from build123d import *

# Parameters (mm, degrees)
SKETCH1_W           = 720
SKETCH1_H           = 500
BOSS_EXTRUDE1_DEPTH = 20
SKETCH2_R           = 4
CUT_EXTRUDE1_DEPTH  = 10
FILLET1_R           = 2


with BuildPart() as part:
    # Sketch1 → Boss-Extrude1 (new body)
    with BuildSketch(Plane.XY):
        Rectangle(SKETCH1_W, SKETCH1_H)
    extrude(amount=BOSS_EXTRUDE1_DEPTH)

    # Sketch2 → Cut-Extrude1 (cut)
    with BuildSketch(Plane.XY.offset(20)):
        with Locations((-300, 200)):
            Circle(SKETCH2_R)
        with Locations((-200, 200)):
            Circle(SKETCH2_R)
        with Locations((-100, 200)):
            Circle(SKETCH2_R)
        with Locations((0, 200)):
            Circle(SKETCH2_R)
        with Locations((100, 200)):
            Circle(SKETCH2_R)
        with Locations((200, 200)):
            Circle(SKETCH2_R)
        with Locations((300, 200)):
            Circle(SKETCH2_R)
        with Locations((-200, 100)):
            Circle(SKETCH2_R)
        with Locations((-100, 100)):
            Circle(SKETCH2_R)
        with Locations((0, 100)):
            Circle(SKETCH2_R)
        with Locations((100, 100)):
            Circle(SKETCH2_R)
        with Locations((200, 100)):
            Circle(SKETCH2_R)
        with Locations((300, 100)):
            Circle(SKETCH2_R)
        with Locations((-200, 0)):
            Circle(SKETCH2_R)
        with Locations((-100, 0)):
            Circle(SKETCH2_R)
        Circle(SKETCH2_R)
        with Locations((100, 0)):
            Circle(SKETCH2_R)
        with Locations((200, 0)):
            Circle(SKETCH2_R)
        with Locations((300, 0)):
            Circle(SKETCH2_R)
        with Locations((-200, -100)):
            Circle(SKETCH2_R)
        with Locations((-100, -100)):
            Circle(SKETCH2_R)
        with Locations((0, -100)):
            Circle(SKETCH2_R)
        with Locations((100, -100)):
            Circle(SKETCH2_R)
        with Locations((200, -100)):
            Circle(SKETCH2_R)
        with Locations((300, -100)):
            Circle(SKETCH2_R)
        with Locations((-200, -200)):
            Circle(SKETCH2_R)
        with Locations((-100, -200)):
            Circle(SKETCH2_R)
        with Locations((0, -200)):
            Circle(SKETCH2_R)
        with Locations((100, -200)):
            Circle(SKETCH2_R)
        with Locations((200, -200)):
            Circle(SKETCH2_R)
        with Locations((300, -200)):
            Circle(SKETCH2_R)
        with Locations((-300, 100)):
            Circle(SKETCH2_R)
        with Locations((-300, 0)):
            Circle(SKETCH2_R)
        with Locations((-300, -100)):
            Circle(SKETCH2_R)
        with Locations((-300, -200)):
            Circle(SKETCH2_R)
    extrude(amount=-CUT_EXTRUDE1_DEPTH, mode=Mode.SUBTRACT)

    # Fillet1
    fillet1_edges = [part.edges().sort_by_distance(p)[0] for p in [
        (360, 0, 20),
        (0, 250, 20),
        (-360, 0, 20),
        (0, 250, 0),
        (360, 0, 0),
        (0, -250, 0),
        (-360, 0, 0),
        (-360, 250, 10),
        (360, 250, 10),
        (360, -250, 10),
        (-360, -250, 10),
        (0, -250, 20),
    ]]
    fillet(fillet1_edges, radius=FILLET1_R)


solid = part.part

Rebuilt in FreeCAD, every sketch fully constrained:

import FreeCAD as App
import Part
import Sketcher

V = App.Vector


def edges_at(feature, points):
    """Names of the edges that pass closest to the given points."""
    edges = feature.Shape.Edges
    near = lambda p: min(range(len(edges)), key=lambda i: edges[i].distToShape(Part.Vertex(*p))[0])
    return sorted({f"Edge{near(p) + 1}" for p in points})

doc = App.newDocument("Part")
body = doc.addObject("PartDesign::Body", "Body")

sketch1 = doc.addObject("Sketcher::SketchObject", "Sketch")
body.addObject(sketch1)
sketch1.AttachmentSupport = (doc.XY_Plane, [""])
sketch1.MapMode = "FlatFace"
sketch1.addGeometry([
    Part.LineSegment(V(-360, 250, 0), V(-360, -250, 0)),
    Part.LineSegment(V(-360, -250, 0), V(360, -250, 0)),
    Part.LineSegment(V(360, -250, 0), V(360, 250, 0)),
    Part.LineSegment(V(360, 250, 0), V(-360, 250, 0)),
], False)
sketch1.addConstraint([
    Sketcher.Constraint("Coincident", 0, 2, 1, 1),
    Sketcher.Constraint("Coincident", 1, 2, 2, 1),
    Sketcher.Constraint("Coincident", 2, 2, 3, 1),
    Sketcher.Constraint("Coincident", 3, 2, 0, 1),
    Sketcher.Constraint("Vertical", 0),
    Sketcher.Constraint("Horizontal", 1),
    Sketcher.Constraint("Vertical", 2),
    Sketcher.Constraint("Horizontal", 3),
    Sketcher.Constraint("Symmetric", 0, 2, 2, 2, -1, 1),
    Sketcher.Constraint("DistanceX", 1, 1, 1, 2, 720.0),
    Sketcher.Constraint("DistanceY", 0, 2, 0, 1, 500.0),
])
pad1 = doc.addObject("PartDesign::Pad", "Pad")
body.addObject(pad1)
pad1.Profile = sketch1
pad1.Length = 20

sketch2 = doc.addObject("Sketcher::SketchObject", "Sketch001")
body.addObject(sketch2)
sketch2.AttachmentSupport = (doc.XY_Plane, [""])
sketch2.MapMode = "FlatFace"
sketch2.AttachmentOffset = App.Placement(V(0, 0, 20), App.Rotation())
sketch2.addGeometry([
    Part.Circle(V(-300, 200, 0), V(0, 0, 1), 4),
    Part.Circle(V(-200, 200, 0), V(0, 0, 1), 4),
    Part.Circle(V(-100, 200, 0), V(0, 0, 1), 4),
    Part.Circle(V(0, 200, 0), V(0, 0, 1), 4),
    Part.Circle(V(100, 200, 0), V(0, 0, 1), 4),
    Part.Circle(V(200, 200, 0), V(0, 0, 1), 4),
    Part.Circle(V(300, 200, 0), V(0, 0, 1), 4),
    Part.Circle(V(-200, 100, 0), V(0, 0, 1), 4),
    Part.Circle(V(-100, 100, 0), V(0, 0, 1), 4),
    Part.Circle(V(0, 100, 0), V(0, 0, 1), 4),
    Part.Circle(V(100, 100, 0), V(0, 0, 1), 4),
    Part.Circle(V(200, 100, 0), V(0, 0, 1), 4),
    Part.Circle(V(300, 100, 0), V(0, 0, 1), 4),
    Part.Circle(V(-200, 0, 0), V(0, 0, 1), 4),
    Part.Circle(V(-100, 0, 0), V(0, 0, 1), 4),
    Part.Circle(V(0, 0, 0), V(0, 0, 1), 4),
    Part.Circle(V(100, 0, 0), V(0, 0, 1), 4),
    Part.Circle(V(200, 0, 0), V(0, 0, 1), 4),
    Part.Circle(V(300, 0, 0), V(0, 0, 1), 4),
    Part.Circle(V(-200, -100, 0), V(0, 0, 1), 4),
    Part.Circle(V(-100, -100, 0), V(0, 0, 1), 4),
    Part.Circle(V(0, -100, 0), V(0, 0, 1), 4),
    Part.Circle(V(100, -100, 0), V(0, 0, 1), 4),
    Part.Circle(V(200, -100, 0), V(0, 0, 1), 4),
    Part.Circle(V(300, -100, 0), V(0, 0, 1), 4),
    Part.Circle(V(-200, -200, 0), V(0, 0, 1), 4),
    Part.Circle(V(-100, -200, 0), V(0, 0, 1), 4),
    Part.Circle(V(0, -200, 0), V(0, 0, 1), 4),
    Part.Circle(V(100, -200, 0), V(0, 0, 1), 4),
    Part.Circle(V(200, -200, 0), V(0, 0, 1), 4),
    Part.Circle(V(300, -200, 0), V(0, 0, 1), 4),
    Part.Circle(V(-300, 100, 0), V(0, 0, 1), 4),
    Part.Circle(V(-300, 0, 0), V(0, 0, 1), 4),
    Part.Circle(V(-300, -100, 0), V(0, 0, 1), 4),
    Part.Circle(V(-300, -200, 0), V(0, 0, 1), 4),
], False)
sketch2.addConstraint([
    Sketcher.Constraint("Coincident", 15, 3, -1, 1),
    Sketcher.Constraint("Equal", 0, 1),
    Sketcher.Constraint("Equal", 1, 2),
    Sketcher.Constraint("Equal", 2, 3),
    Sketcher.Constraint("Equal", 3, 4),
    Sketcher.Constraint("Equal", 4, 5),
    Sketcher.Constraint("Equal", 5, 6),
    Sketcher.Constraint("Equal", 6, 7),
    Sketcher.Constraint("Equal", 7, 8),
    Sketcher.Constraint("Equal", 8, 9),
    Sketcher.Constraint("Equal", 9, 10),
    Sketcher.Constraint("Equal", 10, 11),
    Sketcher.Constraint("Equal", 11, 12),
    Sketcher.Constraint("Equal", 12, 13),
    Sketcher.Constraint("Equal", 13, 14),
    Sketcher.Constraint("Equal", 14, 15),
    Sketcher.Constraint("Equal", 15, 16),
    Sketcher.Constraint("Equal", 16, 17),
    Sketcher.Constraint("Equal", 17, 18),
    Sketcher.Constraint("Equal", 18, 19),
    Sketcher.Constraint("Equal", 19, 20),
    Sketcher.Constraint("Equal", 20, 21),
    Sketcher.Constraint("Equal", 21, 22),
    Sketcher.Constraint("Equal", 22, 23),
    Sketcher.Constraint("Equal", 23, 24),
    Sketcher.Constraint("Equal", 24, 25),
    Sketcher.Constraint("Equal", 25, 26),
    Sketcher.Constraint("Equal", 26, 27),
    Sketcher.Constraint("Equal", 27, 28),
    Sketcher.Constraint("Equal", 28, 29),
    Sketcher.Constraint("Equal", 29, 30),
    Sketcher.Constraint("Equal", 30, 31),
    Sketcher.Constraint("Equal", 31, 32),
    Sketcher.Constraint("Equal", 32, 33),
    Sketcher.Constraint("Equal", 33, 34),
    Sketcher.Constraint("Symmetric", 14, 3, 16, 3, -1, 1),
    Sketcher.Constraint("Symmetric", 13, 3, 17, 3, -1, 1),
    Sketcher.Constraint("Symmetric", 11, 3, 19, 3, -1, 1),
    Sketcher.Constraint("Symmetric", 10, 3, 20, 3, -1, 1),
    Sketcher.Constraint("Symmetric", 9, 3, 21, 3, -1, 1),
    Sketcher.Constraint("Symmetric", 8, 3, 22, 3, -1, 1),
    Sketcher.Constraint("Symmetric", 7, 3, 23, 3, -1, 1),
    Sketcher.Constraint("Symmetric", 5, 3, 25, 3, -1, 1),
    Sketcher.Constraint("Symmetric", 4, 3, 26, 3, -1, 1),
    Sketcher.Constraint("Symmetric", 3, 3, 27, 3, -1, 1),
    Sketcher.Constraint("Symmetric", 2, 3, 28, 3, -1, 1),
    Sketcher.Constraint("Symmetric", 1, 3, 29, 3, -1, 1),
    Sketcher.Constraint("Symmetric", 0, 3, 30, 3, -1, 1),
    Sketcher.Constraint("Symmetric", 24, 3, 31, 3, -1, 1),
    Sketcher.Constraint("Symmetric", 18, 3, 32, 3, -1, 1),
    Sketcher.Constraint("Symmetric", 12, 3, 33, 3, -1, 1),
    Sketcher.Constraint("Symmetric", 6, 3, 34, 3, -1, 1),
    Sketcher.Constraint("Symmetric", 2, 3, 4, 3, -2),
    Sketcher.Constraint("Symmetric", 1, 3, 5, 3, -2),
    Sketcher.Constraint("Symmetric", 0, 3, 6, 3, -2),
    Sketcher.Constraint("Symmetric", 8, 3, 10, 3, -2),
    Sketcher.Constraint("Symmetric", 7, 3, 11, 3, -2),
    Sketcher.Constraint("Symmetric", 12, 3, 31, 3, -2),
    Sketcher.Constraint("PointOnObject", 3, 3, -2),
    Sketcher.Constraint("PointOnObject", 9, 3, -2),
    Sketcher.Constraint("PointOnObject", 13, 3, -1),
    Sketcher.Constraint("PointOnObject", 14, 3, -1),
    Sketcher.Constraint("PointOnObject", 18, 3, -1),
    Sketcher.Constraint("Horizontal", 0, 3, 1, 3),
    Sketcher.Constraint("Horizontal", 1, 3, 2, 3),
    Sketcher.Constraint("Horizontal", 2, 3, 3, 3),
    Sketcher.Constraint("Horizontal", 7, 3, 8, 3),
    Sketcher.Constraint("Horizontal", 8, 3, 9, 3),
    Sketcher.Constraint("Horizontal", 11, 3, 12, 3),
    Sketcher.Constraint("Vertical", 1, 3, 7, 3),
    Sketcher.Constraint("Vertical", 2, 3, 8, 3),
    Sketcher.Constraint("Vertical", 6, 3, 12, 3),
    Sketcher.Constraint("Vertical", 7, 3, 13, 3),
    Sketcher.Constraint("Vertical", 8, 3, 14, 3),
    Sketcher.Constraint("Vertical", 12, 3, 18, 3),
    Sketcher.Constraint("Diameter", 0, 8.0),
    Sketcher.Constraint("DistanceX", 0, 3, -1, 1, 300.0),
    Sketcher.Constraint("DistanceY", -1, 1, 0, 3, 200.0),
    Sketcher.Constraint("DistanceX", 1, 3, -1, 1, 200.0),
    Sketcher.Constraint("DistanceX", 2, 3, -1, 1, 100.0),
    Sketcher.Constraint("DistanceY", -1, 1, 7, 3, 100.0),
])
pocket1 = doc.addObject("PartDesign::Pocket", "Pocket")
body.addObject(pocket1)
pocket1.Profile = sketch2
pocket1.Length = 10
doc.recompute()

fillet = doc.addObject("PartDesign::Fillet", "Fillet")
body.addObject(fillet)
fillet.Base = (pocket1, edges_at(pocket1, [
    (360, 0, 20),
    (0, 250, 20),
    (-360, 0, 20),
    (0, 250, 0),
    (360, 0, 0),
    (0, -250, 0),
    (-360, 0, 0),
    (-360, 250, 10),
    (360, 250, 10),
    (360, -250, 10),
    (-360, -250, 10),
    (0, -250, 20),
]))
fillet.Radius = 2

doc.recompute()
